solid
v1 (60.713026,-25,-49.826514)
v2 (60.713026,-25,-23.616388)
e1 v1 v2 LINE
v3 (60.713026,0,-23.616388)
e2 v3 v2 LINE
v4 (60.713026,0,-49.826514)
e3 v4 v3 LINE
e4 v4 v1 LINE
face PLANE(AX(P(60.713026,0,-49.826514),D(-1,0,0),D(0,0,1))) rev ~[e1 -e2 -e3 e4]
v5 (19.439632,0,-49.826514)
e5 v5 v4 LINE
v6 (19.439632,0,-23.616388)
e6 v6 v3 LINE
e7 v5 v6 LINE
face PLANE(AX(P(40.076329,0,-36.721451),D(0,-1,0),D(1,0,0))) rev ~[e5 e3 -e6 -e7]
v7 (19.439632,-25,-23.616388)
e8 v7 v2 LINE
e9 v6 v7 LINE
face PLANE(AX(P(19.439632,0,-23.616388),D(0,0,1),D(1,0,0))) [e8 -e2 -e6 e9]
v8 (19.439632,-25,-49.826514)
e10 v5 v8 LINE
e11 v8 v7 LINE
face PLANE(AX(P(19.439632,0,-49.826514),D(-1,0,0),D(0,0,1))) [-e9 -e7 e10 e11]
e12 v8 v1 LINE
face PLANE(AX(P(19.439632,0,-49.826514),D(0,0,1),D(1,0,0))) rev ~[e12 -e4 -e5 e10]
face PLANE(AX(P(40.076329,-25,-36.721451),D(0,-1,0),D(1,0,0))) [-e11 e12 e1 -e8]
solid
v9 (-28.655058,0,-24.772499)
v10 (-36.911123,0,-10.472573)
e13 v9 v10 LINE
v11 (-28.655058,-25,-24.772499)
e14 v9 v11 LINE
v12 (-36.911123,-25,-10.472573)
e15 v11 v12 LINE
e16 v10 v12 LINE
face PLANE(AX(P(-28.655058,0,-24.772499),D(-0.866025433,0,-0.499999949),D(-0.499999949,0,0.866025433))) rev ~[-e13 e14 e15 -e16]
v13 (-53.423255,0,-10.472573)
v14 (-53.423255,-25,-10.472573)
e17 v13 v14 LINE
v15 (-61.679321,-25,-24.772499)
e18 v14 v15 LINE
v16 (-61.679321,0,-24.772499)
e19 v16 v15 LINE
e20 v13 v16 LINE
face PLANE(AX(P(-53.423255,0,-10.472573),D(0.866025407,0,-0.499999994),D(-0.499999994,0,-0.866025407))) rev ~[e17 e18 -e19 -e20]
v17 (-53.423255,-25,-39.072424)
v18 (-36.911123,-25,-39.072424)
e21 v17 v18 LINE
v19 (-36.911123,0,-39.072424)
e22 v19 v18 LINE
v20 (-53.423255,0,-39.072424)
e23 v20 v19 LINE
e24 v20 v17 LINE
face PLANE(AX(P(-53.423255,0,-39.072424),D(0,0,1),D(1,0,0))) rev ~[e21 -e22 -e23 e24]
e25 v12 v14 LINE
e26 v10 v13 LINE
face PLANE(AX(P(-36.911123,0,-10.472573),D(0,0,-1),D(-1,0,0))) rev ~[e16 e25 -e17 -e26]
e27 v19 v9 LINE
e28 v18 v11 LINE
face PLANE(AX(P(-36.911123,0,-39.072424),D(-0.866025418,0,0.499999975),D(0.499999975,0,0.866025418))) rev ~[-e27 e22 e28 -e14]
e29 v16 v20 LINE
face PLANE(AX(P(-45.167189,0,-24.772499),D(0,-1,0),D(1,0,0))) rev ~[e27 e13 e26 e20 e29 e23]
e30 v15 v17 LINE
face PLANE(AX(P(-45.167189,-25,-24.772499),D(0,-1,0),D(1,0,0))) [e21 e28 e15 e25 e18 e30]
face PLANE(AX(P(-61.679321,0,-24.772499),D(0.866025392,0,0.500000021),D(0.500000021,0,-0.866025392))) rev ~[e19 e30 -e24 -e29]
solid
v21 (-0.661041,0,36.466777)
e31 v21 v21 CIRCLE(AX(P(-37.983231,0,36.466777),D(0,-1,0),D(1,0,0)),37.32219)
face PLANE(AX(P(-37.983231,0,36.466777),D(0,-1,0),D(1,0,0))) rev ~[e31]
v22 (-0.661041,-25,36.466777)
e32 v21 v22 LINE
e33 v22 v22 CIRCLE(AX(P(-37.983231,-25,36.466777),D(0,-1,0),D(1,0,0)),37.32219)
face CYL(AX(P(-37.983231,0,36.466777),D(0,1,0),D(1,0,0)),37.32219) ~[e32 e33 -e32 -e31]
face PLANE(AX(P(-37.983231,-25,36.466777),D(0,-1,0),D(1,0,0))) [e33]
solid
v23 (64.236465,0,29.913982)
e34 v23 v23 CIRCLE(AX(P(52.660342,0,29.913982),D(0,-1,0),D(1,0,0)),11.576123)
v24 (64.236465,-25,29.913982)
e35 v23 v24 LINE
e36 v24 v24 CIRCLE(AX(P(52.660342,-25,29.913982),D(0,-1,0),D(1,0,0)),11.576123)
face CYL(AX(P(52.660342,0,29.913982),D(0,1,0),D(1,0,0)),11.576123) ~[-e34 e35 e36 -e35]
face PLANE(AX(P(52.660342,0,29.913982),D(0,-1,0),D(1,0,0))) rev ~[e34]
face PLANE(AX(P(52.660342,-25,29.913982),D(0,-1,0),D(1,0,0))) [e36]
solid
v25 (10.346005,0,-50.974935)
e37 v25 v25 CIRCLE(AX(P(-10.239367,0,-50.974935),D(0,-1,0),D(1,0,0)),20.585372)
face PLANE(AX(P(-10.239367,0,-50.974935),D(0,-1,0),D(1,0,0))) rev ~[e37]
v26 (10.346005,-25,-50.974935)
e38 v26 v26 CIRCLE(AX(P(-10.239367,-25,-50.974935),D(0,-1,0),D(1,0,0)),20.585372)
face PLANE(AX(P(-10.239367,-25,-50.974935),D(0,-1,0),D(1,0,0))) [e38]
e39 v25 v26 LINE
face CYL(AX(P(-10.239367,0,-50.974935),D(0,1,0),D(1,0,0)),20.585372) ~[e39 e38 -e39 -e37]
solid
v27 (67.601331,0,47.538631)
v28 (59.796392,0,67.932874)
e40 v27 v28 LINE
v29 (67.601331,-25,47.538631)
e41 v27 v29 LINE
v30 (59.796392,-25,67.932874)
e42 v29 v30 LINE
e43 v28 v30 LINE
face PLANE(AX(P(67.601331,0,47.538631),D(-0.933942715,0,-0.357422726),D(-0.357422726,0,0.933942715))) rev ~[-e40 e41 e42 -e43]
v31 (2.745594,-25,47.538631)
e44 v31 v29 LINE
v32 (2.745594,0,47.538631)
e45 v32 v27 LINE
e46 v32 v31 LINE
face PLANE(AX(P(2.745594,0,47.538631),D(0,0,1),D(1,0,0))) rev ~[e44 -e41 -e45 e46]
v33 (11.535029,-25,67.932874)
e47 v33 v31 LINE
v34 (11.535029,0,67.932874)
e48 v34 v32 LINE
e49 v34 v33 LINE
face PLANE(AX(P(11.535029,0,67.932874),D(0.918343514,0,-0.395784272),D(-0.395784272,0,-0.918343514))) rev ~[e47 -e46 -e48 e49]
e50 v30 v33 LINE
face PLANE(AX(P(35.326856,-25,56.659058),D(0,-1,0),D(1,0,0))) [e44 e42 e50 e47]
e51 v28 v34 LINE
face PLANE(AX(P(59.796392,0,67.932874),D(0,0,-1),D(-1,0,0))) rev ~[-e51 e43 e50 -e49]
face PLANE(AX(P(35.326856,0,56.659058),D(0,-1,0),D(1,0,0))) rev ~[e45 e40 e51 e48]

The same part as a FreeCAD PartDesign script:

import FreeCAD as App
import Part
import Sketcher

V = App.Vector
Q = App.Units.Quantity


def add_polygon(sketch, points):
    """Adds a closed chain of lines whose ends are joined by coincident constraints."""
    first, n = sketch.GeometryCount, len(points)
    for a, b in zip(points, points[1:] + points[:1]):
        sketch.addGeometry(Part.LineSegment(App.Vector(*a, 0), App.Vector(*b, 0)), False)
    for i in range(n):
        sketch.addConstraint(Sketcher.Constraint("Coincident", first + i, 2, first + (i + 1) % n, 1))

doc = App.newDocument("Part")
body = doc.addObject("PartDesign::Body", "Body")
body.AllowCompound = True

# Sketch on XZ plane
sketch1 = body.newObject("Sketcher::SketchObject", "Sketch")
sketch1.AttachmentSupport = (doc.getObject("XZ_Plane"), [""])
sketch1.MapMode = "FlatFace"
sketch1.addGeometry(Part.Circle(V(53, 30, 0), V(0, 0, 1), 12), False)  # 0
add_polygon(sketch1, [(12, 68), (3, 48), (68, 48), (60, 68)])  # lines 1-4
add_polygon(sketch1, [(19, -24), (19, -50), (61, -50), (61, -24)])  # lines 5-8
sketch1.addGeometry(Part.Circle(V(-10, -51, 0), V(0, 0, 1), 21), False)  # 9
add_polygon(sketch1, [(-53, -39), (-37, -39), (-29, -25), (-37, -10), (-53, -10), (-62, -25)])  # lines 10-15
sketch1.addConstraint(Sketcher.Constraint("Horizontal", 2))
sketch1.addConstraint(Sketcher.Constraint("Horizontal", 4))
sketch1.addConstraint(Sketcher.Constraint("Vertical", 5))
sketch1.addConstraint(Sketcher.Constraint("Horizontal", 6))
sketch1.addConstraint(Sketcher.Constraint("Vertical", 7))
sketch1.addConstraint(Sketcher.Constraint("Horizontal", 8))
sketch1.addConstraint(Sketcher.Constraint("Horizontal", 10))
sketch1.addConstraint(Sketcher.Constraint("Horizontal", 13))
sketch1.addConstraint(Sketcher.Constraint("Parallel", 11, 14))
sketch1.addConstraint(Sketcher.Constraint("Parallel", 12, 15))
sketch1.addConstraint(Sketcher.Constraint("Horizontal", 11, 2, 14, 2))
sketch1.addConstraint(Sketcher.Constraint("Vertical", 10, 2, 12, 2))
sketch1.addConstraint(Sketcher.Constraint("Vertical", 13, 2, 15, 2))
sketch1.addConstraint(Sketcher.Constraint("Angle", 11, Q("60.000002 deg")))
sketch1.addConstraint(Sketcher.Constraint("Diameter", 0, 23.152246))
sketch1.addConstraint(Sketcher.Constraint("Diameter", 9, 41.170744))
sketch1.addConstraint(Sketcher.Constraint("DistanceX", 9, 3, 5, 2, 29.678998))
sketch1.addConstraint(Sketcher.Constraint("DistanceX", 10, 1, 10, 2, 16.512132))
sketch1.addConstraint(Sketcher.Constraint("DistanceY", 11, 2, -1, 1, 24.772499))
sketch1.addConstraint(Sketcher.Constraint("DistanceX", 9, 3, 2, 2, 77.840698))
sketch1.addConstraint(Sketcher.Constraint("Distance", 1, 22.207641))
sketch1.addConstraint(Sketcher.Constraint("Distance", 11, 16.512131))
sketch1.addConstraint(Sketcher.Constraint("DistanceX", 2, 1, 2, 2, 64.855737))
sketch1.addConstraint(Sketcher.Constraint("DistanceX", 4, 2, 4, 1, 48.261363))
sketch1.addConstraint(Sketcher.Constraint("DistanceX", 6, 1, 6, 2, 41.273395))
sketch1.addConstraint(Sketcher.Constraint("DistanceY", 5, 2, 5, 1, 26.210126))
sketch1.addConstraint(Sketcher.Constraint("DistanceY", -1, 1, 1, 2, 47.538631))
sketch1.addConstraint(Sketcher.Constraint("DistanceX", -1, 1, 2, 2, 67.601331))
sketch1.addConstraint(Sketcher.Constraint("DistanceX", -1, 1, 3, 2, 59.796392))
sketch1.addConstraint(Sketcher.Constraint("DistanceY", 7, 2, -1, 1, 23.616388))
sketch1.addConstraint(Sketcher.Constraint("DistanceX", 11, 2, -1, 1, 28.655058))
sketch1.addConstraint(Sketcher.Constraint("DistanceX", 9, 3, 0, 3, 62.899709))
sketch1.addConstraint(Sketcher.Constraint("DistanceY", 0, 3, 1, 2, 17.624649))
sketch1.addConstraint(Sketcher.Constraint("DistanceY", 9, 3, 3, 2, 118.907809))
pad1 = body.newObject("PartDesign::Pad", "Pad")
pad1.Profile = sketch1
pad1.Length = 25
body2 = doc.addObject("PartDesign::Body", "Body001")

# Sketch on XZ plane
sketch2 = body2.newObject("Sketcher::SketchObject", "Sketch001")
sketch2.AttachmentSupport = (doc.getObject("XZ_Plane001"), [""])
sketch2.MapMode = "FlatFace"
sketch2.addGeometry(Part.Circle(V(-38, 36, 0), V(0, 0, 1), 37), False)
sketch2.addConstraint(Sketcher.Constraint("Diameter", 0, 74.64438))
sketch2.addConstraint(Sketcher.Constraint("DistanceX", 0, 3, -1, 1, 37.983231))
sketch2.addConstraint(Sketcher.Constraint("DistanceY", -1, 1, 0, 3, 36.466777))
pad2 = body2.newObject("PartDesign::Pad", "Pad001")
pad2.Profile = sketch2
pad2.Length = 25

doc.recompute()
